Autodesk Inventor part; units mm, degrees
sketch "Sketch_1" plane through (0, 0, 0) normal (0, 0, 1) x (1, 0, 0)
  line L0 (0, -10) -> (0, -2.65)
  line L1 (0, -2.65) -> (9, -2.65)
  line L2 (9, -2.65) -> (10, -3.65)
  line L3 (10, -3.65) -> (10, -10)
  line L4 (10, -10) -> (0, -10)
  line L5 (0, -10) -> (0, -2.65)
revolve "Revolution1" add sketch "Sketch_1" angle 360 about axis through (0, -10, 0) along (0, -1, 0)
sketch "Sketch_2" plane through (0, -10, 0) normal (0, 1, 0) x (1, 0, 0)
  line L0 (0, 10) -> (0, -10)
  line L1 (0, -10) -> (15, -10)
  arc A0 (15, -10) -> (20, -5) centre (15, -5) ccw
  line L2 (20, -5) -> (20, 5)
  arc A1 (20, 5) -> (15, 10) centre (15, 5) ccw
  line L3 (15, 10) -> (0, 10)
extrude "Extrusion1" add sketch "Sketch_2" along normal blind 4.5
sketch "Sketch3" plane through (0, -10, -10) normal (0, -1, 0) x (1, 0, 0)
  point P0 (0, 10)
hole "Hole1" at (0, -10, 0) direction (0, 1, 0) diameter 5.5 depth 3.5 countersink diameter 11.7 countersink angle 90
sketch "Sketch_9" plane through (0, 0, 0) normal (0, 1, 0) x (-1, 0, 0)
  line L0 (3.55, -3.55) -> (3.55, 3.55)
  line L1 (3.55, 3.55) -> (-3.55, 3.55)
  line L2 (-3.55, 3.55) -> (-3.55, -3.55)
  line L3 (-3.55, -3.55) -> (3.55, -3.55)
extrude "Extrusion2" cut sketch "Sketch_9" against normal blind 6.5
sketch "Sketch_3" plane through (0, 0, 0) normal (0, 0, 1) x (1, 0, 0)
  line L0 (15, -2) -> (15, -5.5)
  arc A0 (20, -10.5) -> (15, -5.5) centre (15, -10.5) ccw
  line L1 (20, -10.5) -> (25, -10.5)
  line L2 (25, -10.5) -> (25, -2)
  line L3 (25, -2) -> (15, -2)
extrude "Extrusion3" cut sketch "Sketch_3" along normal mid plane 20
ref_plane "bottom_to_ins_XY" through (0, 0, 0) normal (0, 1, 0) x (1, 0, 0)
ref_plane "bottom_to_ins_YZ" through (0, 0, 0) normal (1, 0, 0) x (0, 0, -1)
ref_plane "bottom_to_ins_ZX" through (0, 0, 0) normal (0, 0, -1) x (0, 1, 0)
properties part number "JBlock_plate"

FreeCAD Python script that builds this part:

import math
import FreeCAD as App
import Part
import Sketcher

V = App.Vector
Q = App.Units.Quantity


def add_polygon(sketch, points):
    """Adds a closed chain of lines whose ends are joined by coincident constraints."""
    first, n = sketch.GeometryCount, len(points)
    for a, b in zip(points, points[1:] + points[:1]):
        sketch.addGeometry(Part.LineSegment(App.Vector(*a, 0), App.Vector(*b, 0)), False)
    for i in range(n):
        sketch.addConstraint(Sketcher.Constraint("Coincident", first + i, 2, first + (i + 1) % n, 1))

doc = App.newDocument("Part")
body = doc.addObject("PartDesign::Body", "Body")

# Sketch on XY plane
sketch1 = body.newObject("Sketcher::SketchObject", "Sketch")
sketch1.AttachmentSupport = (doc.getObject("XY_Plane"), [""])
sketch1.MapMode = "FlatFace"
add_polygon(sketch1, [(0, -2.6), (0, -10), (10, -10), (10, -3.6), (9, -2.6)])  # lines 0-4
sketch1.addConstraint([
    Sketcher.Constraint("Vertical", 0),
    Sketcher.Constraint("Horizontal", 1),
    Sketcher.Constraint("Vertical", 2),
    Sketcher.Constraint("Horizontal", 4),
    Sketcher.Constraint("PointOnObject", 0, 2, -2),
    Sketcher.Constraint("DistanceX", 1, 1, 1, 2, Q("10 mm")),
    Sketcher.Constraint("DistanceX", 4, 2, 4, 1, Q("9 mm")),
    Sketcher.Constraint("Angle", 3, Q("135 deg")),
    Sketcher.Constraint("DistanceY", 0, 2, -1, 1, Q("10 mm")),
    Sketcher.Constraint("DistanceY", 0, 2, 0, 1, Q("7.35 mm")),
])
revolution = body.newObject("PartDesign::Revolution", "Revolution")
revolution.Profile = sketch1
revolution.ReferenceAxis = (sketch1, ["V_Axis"])
revolution.Angle = 360

# Sketch on XZ plane
sketch2 = body.newObject("Sketcher::SketchObject", "Sketch001")
sketch2.AttachmentSupport = (doc.getObject("XZ_Plane"), [""])
sketch2.MapMode = "FlatFace"
sketch2.AttachmentOffset = App.Placement(V(0, 0, 10), App.Rotation())
sketch2.addGeometry([
    Part.LineSegment(V(15, -10, 0), V(0, -10, 0)),  # 0
    Part.LineSegment(V(0, -10, 0), V(0, 10, 0)),  # 1
    Part.LineSegment(V(0, 10, 0), V(15, 10, 0)),  # 2
    Part.ArcOfCircle(Part.Circle(V(15, 5, 0), V(0, 0, 1), 5), math.radians(0), math.radians(90)),  # 3
    Part.LineSegment(V(20, 5, 0), V(20, -5, 0)),  # 4
    Part.ArcOfCircle(Part.Circle(V(15, -5, 0), V(0, 0, 1), 5), math.radians(-90), math.radians(0)),  # 5
], False)
sketch2.addConstraint([
    Sketcher.Constraint("Coincident", 0, 2, 1, 1),
    Sketcher.Constraint("Coincident", 1, 2, 2, 1),
    Sketcher.Constraint("Tangent", 2, 2, 3, 2),
    Sketcher.Constraint("Tangent", 3, 1, 4, 1),
    Sketcher.Constraint("Tangent", 4, 2, 5, 2),
    Sketcher.Constraint("Tangent", 5, 1, 0, 1),
    Sketcher.Constraint("Horizontal", 0),
    Sketcher.Constraint("Vertical", 1),
    Sketcher.Constraint("Horizontal", 2),
    Sketcher.Constraint("Vertical", 4),
    Sketcher.Constraint("Equal", 3, 5),
    Sketcher.Constraint("Symmetric", 0, 2, 1, 2, -1, 1),
    Sketcher.Constraint("Radius", 3, Q("5 mm")),
    Sketcher.Constraint("DistanceX", 0, 2, 0, 1, Q("15 mm")),
    Sketcher.Constraint("DistanceY", 1, 1, 1, 2, Q("20 mm")),
])
pad1 = body.newObject("PartDesign::Pad", "Pad")
pad1.Profile = sketch2
pad1.Length = 4.5
pad1.Reversed = True

# Sketch on XZ plane
sketch3 = body.newObject("Sketcher::SketchObject", "Sketch002")
sketch3.AttachmentSupport = (doc.getObject("XZ_Plane"), [""])
sketch3.MapMode = "FlatFace"
sketch3.AttachmentOffset = App.Placement(V(0, 0, 10), App.Rotation())
sketch3.addGeometry(Part.Circle(V(0, 0, 0), V(0, 0, 1), 2.8), False)
sketch3.addConstraint([
    Sketcher.Constraint("Coincident", 0, 3, -1, 1),
    Sketcher.Constraint("Diameter", 0, Q("5.5 mm")),
])
doc.recompute()
hole = body.newObject("PartDesign::Hole", "Hole")
hole.Profile = sketch3
hole.ThreadType = "None"
hole.Diameter = 5.5
hole.DepthType = "Dimension"
hole.Depth = 3.5
hole.DrillPoint = "Flat"
hole.HoleCutType = "Countersink"
hole.HoleCutDiameter = 11.7
hole.HoleCutCountersinkAngle = 90

# Sketch on XZ plane
sketch4 = body.newObject("Sketcher::SketchObject", "Sketch003")
sketch4.AttachmentSupport = (doc.getObject("XZ_Plane"), [""])
sketch4.MapMode = "FlatFace"
add_polygon(sketch4, [(4, -4), (-4, -4), (-4, 4), (4, 4)])  # lines 0-3
sketch4.addConstraint([
    Sketcher.Constraint("Horizontal", 0),
    Sketcher.Constraint("Vertical", 1),
    Sketcher.Constraint("Horizontal", 2),
    Sketcher.Constraint("Vertical", 3),
    Sketcher.Constraint("Symmetric", 0, 2, 2, 2, -1, 1),
    Sketcher.Constraint("Equal", 2, 1),
    Sketcher.Constraint("DistanceX", 0, 2, 0, 1, Q("7.1 mm")),
])
pocket1 = body.newObject("PartDesign::Pocket", "Pocket")
pocket1.Profile = sketch4
pocket1.Length = 6.5
pocket1.Reversed = True

# Sketch on XY plane
sketch5 = body.newObject("Sketcher::SketchObject", "Sketch004")
sketch5.AttachmentSupport = (doc.getObject("XY_Plane"), [""])
sketch5.MapMode = "FlatFace"
sketch5.addGeometry([
    Part.LineSegment(V(25, -2, 0), V(15, -2, 0)),  # 0
    Part.LineSegment(V(15, -2, 0), V(15, -5.5, 0)),  # 1
    Part.ArcOfCircle(Part.Circle(V(15, -10.5, 0), V(0, 0, 1), 5), math.radians(0), math.radians(90)),  # 2
    Part.LineSegment(V(20, -10.5, 0), V(25, -10.5, 0)),  # 3
    Part.LineSegment(V(25, -10.5, 0), V(25, -2, 0)),  # 4
], False)
sketch5.addConstraint([
    Sketcher.Constraint("Coincident", 0, 2, 1, 1),
    Sketcher.Constraint("Coincident", 1, 2, 2, 2),
    Sketcher.Constraint("Coincident", 2, 1, 3, 1),
    Sketcher.Constraint("Coincident", 3, 2, 4, 1),
    Sketcher.Constraint("Coincident", 4, 2, 0, 1),
    Sketcher.Constraint("Horizontal", 0),
    Sketcher.Constraint("Vertical", 1),
    Sketcher.Constraint("Horizontal", 3),
    Sketcher.Constraint("Vertical", 4),
    Sketcher.Constraint("Vertical", 2, 3, 0, 2),
    Sketcher.Constraint("Radius", 2, Q("5 mm")),
    Sketcher.Constraint("DistanceX", 0, 2, 0, 1, Q("10 mm")),
    Sketcher.Constraint("DistanceY", 1, 2, 1, 1, Q("3.5 mm")),
    Sketcher.Constraint("DistanceY", 4, 1, 4, 2, Q("8.5 mm")),
    Sketcher.Constraint("DistanceX", -1, 1, 2, 3, Q("15 mm")),
    Sketcher.Constraint("DistanceY", 0, 2, -1, 1, Q("2 mm")),
])
pocket2 = body.newObject("PartDesign::Pocket", "Pocket001")
pocket2.Profile = sketch5
pocket2.Length = 20
pocket2.Midplane = True

doc.recompute()
